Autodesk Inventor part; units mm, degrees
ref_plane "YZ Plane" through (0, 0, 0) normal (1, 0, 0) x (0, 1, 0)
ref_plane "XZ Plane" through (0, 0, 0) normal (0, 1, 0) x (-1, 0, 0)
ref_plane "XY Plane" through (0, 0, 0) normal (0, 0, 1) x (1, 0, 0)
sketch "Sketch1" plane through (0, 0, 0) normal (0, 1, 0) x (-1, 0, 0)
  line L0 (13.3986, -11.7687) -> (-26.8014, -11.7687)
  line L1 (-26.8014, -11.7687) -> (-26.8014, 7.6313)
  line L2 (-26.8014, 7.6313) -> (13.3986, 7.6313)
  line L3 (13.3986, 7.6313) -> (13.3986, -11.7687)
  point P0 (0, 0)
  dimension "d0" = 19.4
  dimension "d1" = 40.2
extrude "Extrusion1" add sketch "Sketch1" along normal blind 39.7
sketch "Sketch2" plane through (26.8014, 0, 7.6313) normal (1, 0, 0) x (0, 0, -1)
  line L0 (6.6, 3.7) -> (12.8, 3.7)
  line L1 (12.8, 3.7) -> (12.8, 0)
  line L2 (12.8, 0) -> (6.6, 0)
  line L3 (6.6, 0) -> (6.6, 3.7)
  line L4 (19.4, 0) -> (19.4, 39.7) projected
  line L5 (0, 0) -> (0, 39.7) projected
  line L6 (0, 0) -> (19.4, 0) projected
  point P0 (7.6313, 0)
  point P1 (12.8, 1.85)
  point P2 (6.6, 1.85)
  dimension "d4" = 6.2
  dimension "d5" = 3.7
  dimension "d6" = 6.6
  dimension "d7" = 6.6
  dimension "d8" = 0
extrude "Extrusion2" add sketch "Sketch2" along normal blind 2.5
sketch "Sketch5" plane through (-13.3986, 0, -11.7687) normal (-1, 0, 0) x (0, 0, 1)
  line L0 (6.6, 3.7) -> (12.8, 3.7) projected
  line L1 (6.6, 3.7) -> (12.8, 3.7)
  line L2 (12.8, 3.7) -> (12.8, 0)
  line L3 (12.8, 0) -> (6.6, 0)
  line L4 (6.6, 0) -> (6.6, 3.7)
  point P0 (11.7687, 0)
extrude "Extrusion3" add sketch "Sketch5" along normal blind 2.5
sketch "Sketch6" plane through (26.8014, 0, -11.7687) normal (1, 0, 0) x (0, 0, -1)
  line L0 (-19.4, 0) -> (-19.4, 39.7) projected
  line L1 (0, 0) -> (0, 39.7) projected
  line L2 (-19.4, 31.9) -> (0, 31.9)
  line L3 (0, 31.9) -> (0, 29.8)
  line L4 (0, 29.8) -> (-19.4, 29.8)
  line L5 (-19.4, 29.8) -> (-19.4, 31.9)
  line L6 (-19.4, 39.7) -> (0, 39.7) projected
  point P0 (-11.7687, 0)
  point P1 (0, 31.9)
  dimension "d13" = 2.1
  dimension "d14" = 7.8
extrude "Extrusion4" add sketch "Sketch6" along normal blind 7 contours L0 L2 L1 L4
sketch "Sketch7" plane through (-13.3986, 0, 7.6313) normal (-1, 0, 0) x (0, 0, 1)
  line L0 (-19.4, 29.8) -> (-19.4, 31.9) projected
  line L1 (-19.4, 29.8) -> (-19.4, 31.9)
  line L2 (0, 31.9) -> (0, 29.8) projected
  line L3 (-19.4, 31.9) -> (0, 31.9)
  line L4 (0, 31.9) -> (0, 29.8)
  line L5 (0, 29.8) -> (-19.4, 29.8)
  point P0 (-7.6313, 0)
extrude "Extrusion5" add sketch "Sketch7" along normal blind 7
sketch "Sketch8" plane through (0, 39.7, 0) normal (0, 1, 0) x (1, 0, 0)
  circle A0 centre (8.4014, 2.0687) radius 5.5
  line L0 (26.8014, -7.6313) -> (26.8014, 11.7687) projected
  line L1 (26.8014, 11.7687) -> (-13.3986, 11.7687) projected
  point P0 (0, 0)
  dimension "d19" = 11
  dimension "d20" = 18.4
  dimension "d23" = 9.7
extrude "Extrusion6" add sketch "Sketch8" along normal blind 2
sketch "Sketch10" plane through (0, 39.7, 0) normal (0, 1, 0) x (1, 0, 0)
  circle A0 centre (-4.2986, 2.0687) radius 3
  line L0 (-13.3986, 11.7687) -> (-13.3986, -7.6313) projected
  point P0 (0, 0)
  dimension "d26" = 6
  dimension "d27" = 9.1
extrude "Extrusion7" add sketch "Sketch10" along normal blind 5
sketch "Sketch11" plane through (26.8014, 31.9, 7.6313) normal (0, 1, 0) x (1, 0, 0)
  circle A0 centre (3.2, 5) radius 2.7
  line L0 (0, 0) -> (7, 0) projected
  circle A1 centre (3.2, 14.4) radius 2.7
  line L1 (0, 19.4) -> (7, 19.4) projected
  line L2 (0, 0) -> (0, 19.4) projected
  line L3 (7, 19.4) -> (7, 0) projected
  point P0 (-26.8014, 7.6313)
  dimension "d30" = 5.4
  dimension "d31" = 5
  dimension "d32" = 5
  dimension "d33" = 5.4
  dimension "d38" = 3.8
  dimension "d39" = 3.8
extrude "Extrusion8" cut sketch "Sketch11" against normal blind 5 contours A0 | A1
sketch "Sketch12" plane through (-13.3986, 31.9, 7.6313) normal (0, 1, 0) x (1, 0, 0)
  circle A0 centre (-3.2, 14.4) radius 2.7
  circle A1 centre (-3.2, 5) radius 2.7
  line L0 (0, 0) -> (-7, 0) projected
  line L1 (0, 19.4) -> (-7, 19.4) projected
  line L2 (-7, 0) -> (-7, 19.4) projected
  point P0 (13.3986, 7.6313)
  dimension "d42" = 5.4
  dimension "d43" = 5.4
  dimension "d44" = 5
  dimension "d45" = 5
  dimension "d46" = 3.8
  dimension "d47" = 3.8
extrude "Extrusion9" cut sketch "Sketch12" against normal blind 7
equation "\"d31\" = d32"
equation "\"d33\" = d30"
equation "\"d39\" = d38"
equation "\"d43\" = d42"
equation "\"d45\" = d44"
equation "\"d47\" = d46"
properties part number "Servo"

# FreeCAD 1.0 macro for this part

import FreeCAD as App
import Part
import Sketcher
from FreeCAD import Vector
Q = App.Units.Quantity

doc = App.newDocument("Part")
body = doc.addObject("PartDesign::Body", "Body")

# Sketch on XZ plane
sketch1 = doc.addObject("Sketcher::SketchObject", "Sketch")
body.addObject(sketch1)
sketch1.AttachmentSupport = (doc.XZ_Plane, [""])
sketch1.MapMode = "FlatFace"
sketch1.addGeometry([
    Part.LineSegment(Vector(26.8014, -11.7687, 0), Vector(-13.3986, -11.7687, 0)),
    Part.LineSegment(Vector(-13.3986, -11.7687, 0), Vector(-13.3986, 7.6313, 0)),
    Part.LineSegment(Vector(-13.3986, 7.6313, 0), Vector(26.8014, 7.6313, 0)),
    Part.LineSegment(Vector(26.8014, 7.6313, 0), Vector(26.8014, -11.7687, 0)),
], False)
sketch1.addConstraint([
    Sketcher.Constraint("Coincident", 0, 2, 1, 1),
    Sketcher.Constraint("Coincident", 1, 2, 2, 1),
    Sketcher.Constraint("Coincident", 2, 2, 3, 1),
    Sketcher.Constraint("Coincident", 3, 2, 0, 1),
    Sketcher.Constraint("Horizontal", 0),
    Sketcher.Constraint("Vertical", 1),
    Sketcher.Constraint("Horizontal", 2),
    Sketcher.Constraint("Vertical", 3),
    Sketcher.Constraint("DistanceX", 0, 2, 0, 1, Q("40.2 mm")),
    Sketcher.Constraint("DistanceY", 1, 1, 1, 2, Q("19.4 mm")),
    Sketcher.Constraint("DistanceX", 0, 2, -1, 1, Q("13.3986 mm")),
    Sketcher.Constraint("DistanceY", 0, 2, -1, 1, Q("11.7687 mm")),
])
pad1 = doc.addObject("PartDesign::Pad", "Pad")
body.addObject(pad1)
pad1.Profile = sketch1
pad1.Length = 39.7
pad1.Reversed = True

# Sketch on YZ plane
sketch2 = doc.addObject("Sketcher::SketchObject", "Sketch001")
body.addObject(sketch2)
sketch2.AttachmentSupport = (doc.YZ_Plane, [""])
sketch2.MapMode = "FlatFace"
sketch2.AttachmentOffset = App.Placement(Vector(0, 0, 26.8014), App.Rotation())
sketch2.addGeometry([
    Part.LineSegment(Vector(3.7, -5.1687, 0), Vector(3.7, 1.0313, 0)),
    Part.LineSegment(Vector(3.7, 1.0313, 0), Vector(0, 1.0313, 0)),
    Part.LineSegment(Vector(0, 1.0313, 0), Vector(0, -5.1687, 0)),
    Part.LineSegment(Vector(0, -5.1687, 0), Vector(3.7, -5.1687, 0)),
], False)
sketch2.addConstraint([
    Sketcher.Constraint("Coincident", 0, 2, 1, 1),
    Sketcher.Constraint("Coincident", 1, 2, 2, 1),
    Sketcher.Constraint("Coincident", 2, 2, 3, 1),
    Sketcher.Constraint("Coincident", 3, 2, 0, 1),
    Sketcher.Constraint("Vertical", 0),
    Sketcher.Constraint("Horizontal", 1),
    Sketcher.Constraint("Vertical", 2),
    Sketcher.Constraint("Horizontal", 3),
    Sketcher.Constraint("PointOnObject", 1, 2, -2),
    Sketcher.Constraint("DistanceX", 1, 2, 1, 1, Q("3.7 mm")),
    Sketcher.Constraint("DistanceY", 0, 1, 0, 2, Q("6.2 mm")),
    Sketcher.Constraint("DistanceY", -1, 1, 0, 2, Q("1.0313 mm")),
])
pad2 = doc.addObject("PartDesign::Pad", "Pad001")
body.addObject(pad2)
pad2.Profile = sketch2
pad2.Length = 2.5

# Sketch on YZ plane
sketch3 = doc.addObject("Sketcher::SketchObject", "Sketch002")
body.addObject(sketch3)
sketch3.AttachmentSupport = (doc.YZ_Plane, [""])
sketch3.MapMode = "FlatFace"
sketch3.AttachmentOffset = App.Placement(Vector(0, 0, -13.3986), App.Rotation())
sketch3.addGeometry([
    Part.LineSegment(Vector(3.7, 1.0313, 0), Vector(3.7, -5.1687, 0)),
    Part.LineSegment(Vector(3.7, -5.1687, 0), Vector(0, -5.1687, 0)),
    Part.LineSegment(Vector(0, -5.1687, 0), Vector(0, 1.0313, 0)),
    Part.LineSegment(Vector(0, 1.0313, 0), Vector(3.7, 1.0313, 0)),
], False)
sketch3.addConstraint([
    Sketcher.Constraint("Coincident", 0, 2, 1, 1),
    Sketcher.Constraint("Coincident", 1, 2, 2, 1),
    Sketcher.Constraint("Coincident", 2, 2, 3, 1),
    Sketcher.Constraint("Coincident", 3, 2, 0, 1),
    Sketcher.Constraint("Vertical", 0),
    Sketcher.Constraint("Horizontal", 1),
    Sketcher.Constraint("Vertical", 2),
    Sketcher.Constraint("Horizontal", 3),
    Sketcher.Constraint("PointOnObject", 1, 2, -2),
    Sketcher.Constraint("DistanceX", 1, 2, 1, 1, Q("3.7 mm")),
    Sketcher.Constraint("DistanceY", 0, 2, 0, 1, Q("6.2 mm")),
    Sketcher.Constraint("DistanceY", 0, 2, -1, 1, Q("5.1687 mm")),
])
pad3 = doc.addObject("PartDesign::Pad", "Pad002")
body.addObject(pad3)
pad3.Profile = sketch3
pad3.Length = 2.5
pad3.Reversed = True

# Sketch on YZ plane
sketch4 = doc.addObject("Sketcher::SketchObject", "Sketch003")
body.addObject(sketch4)
sketch4.AttachmentSupport = (doc.YZ_Plane, [""])
sketch4.MapMode = "FlatFace"
sketch4.AttachmentOffset = App.Placement(Vector(0, 0, 26.8014), App.Rotation())
sketch4.addGeometry([
    Part.LineSegment(Vector(31.9, 7.6313, 0), Vector(29.8, 7.6313, 0)),
    Part.LineSegment(Vector(29.8, 7.6313, 0), Vector(29.8, -11.7687, 0)),
    Part.LineSegment(Vector(29.8, -11.7687, 0), Vector(31.9, -11.7687, 0)),
    Part.LineSegment(Vector(31.9, -11.7687, 0), Vector(31.9, 7.6313, 0)),
], False)
sketch4.addConstraint([
    Sketcher.Constraint("Coincident", 0, 2, 1, 1),
    Sketcher.Constraint("Coincident", 1, 2, 2, 1),
    Sketcher.Constraint("Coincident", 2, 2, 3, 1),
    Sketcher.Constraint("Coincident", 3, 2, 0, 1),
    Sketcher.Constraint("Horizontal", 0),
    Sketcher.Constraint("Vertical", 1),
    Sketcher.Constraint("Horizontal", 2),
    Sketcher.Constraint("Vertical", 3),
    Sketcher.Constraint("DistanceX", 0, 2, 0, 1, Q("2.1 mm")),
    Sketcher.Constraint("DistanceY", 1, 2, 1, 1, Q("19.4 mm")),
    Sketcher.Constraint("DistanceX", -1, 1, 0, 2, Q("29.8 mm")),
    Sketcher.Constraint("DistanceY", -1, 1, 0, 2, Q("7.6313 mm")),
])
pad4 = doc.addObject("PartDesign::Pad", "Pad003")
body.addObject(pad4)
pad4.Profile = sketch4
pad4.Length = 7

# Sketch on YZ plane
sketch5 = doc.addObject("Sketcher::SketchObject", "Sketch004")
body.addObject(sketch5)
sketch5.AttachmentSupport = (doc.YZ_Plane, [""])
sketch5.MapMode = "FlatFace"
sketch5.AttachmentOffset = App.Placement(Vector(0, 0, -13.3986), App.Rotation())
sketch5.addGeometry([
    Part.LineSegment(Vector(31.9, -11.7687, 0), Vector(29.8, -11.7687, 0)),
    Part.LineSegment(Vector(29.8, -11.7687, 0), Vector(29.8, 7.6313, 0)),
    Part.LineSegment(Vector(29.8, 7.6313, 0), Vector(31.9, 7.6313, 0)),
    Part.LineSegment(Vector(31.9, 7.6313, 0), Vector(31.9, -11.7687, 0)),
], False)
sketch5.addConstraint([
    Sketcher.Constraint("Coincident", 0, 2, 1, 1),
    Sketcher.Constraint("Coincident", 1, 2, 2, 1),
    Sketcher.Constraint("Coincident", 2, 2, 3, 1),
    Sketcher.Constraint("Coincident", 3, 2, 0, 1),
    Sketcher.Constraint("Horizontal", 0),
    Sketcher.Constraint("Vertical", 1),
    Sketcher.Constraint("Horizontal", 2),
    Sketcher.Constraint("Vertical", 3),
    Sketcher.Constraint("DistanceX", 0, 2, 0, 1, Q("2.1 mm")),
    Sketcher.Constraint("DistanceY", 1, 1, 1, 2, Q("19.4 mm")),
    Sketcher.Constraint("DistanceX", -1, 1, 0, 2, Q("29.8 mm")),
    Sketcher.Constraint("DistanceY", 0, 2, -1, 1, Q("11.7687 mm")),
])
pad5 = doc.addObject("PartDesign::Pad", "Pad004")
body.addObject(pad5)
pad5.Profile = sketch5
pad5.Length = 7
pad5.Reversed = True

# Sketch on XZ plane
sketch6 = doc.addObject("Sketcher::SketchObject", "Sketch005")
body.addObject(sketch6)
sketch6.AttachmentSupport = (doc.XZ_Plane, [""])
sketch6.MapMode = "FlatFace"
sketch6.AttachmentOffset = App.Placement(Vector(0, 0, -39.7), App.Rotation())
sketch6.addGeometry(Part.Circle(Vector(8.4014, -2.0687, 0), Vector(0, 0, 1), 5.5), False)
sketch6.addConstraint([
    Sketcher.Constraint("Diameter", 0, Q("11 mm")),
    Sketcher.Constraint("DistanceX", -1, 1, 0, 3, Q("8.4014 mm")),
    Sketcher.Constraint("DistanceY", 0, 3, -1, 1, Q("2.0687 mm")),
])
pad6 = doc.addObject("PartDesign::Pad", "Pad005")
body.addObject(pad6)
pad6.Profile = sketch6
pad6.Length = 2
pad6.Reversed = True

# Sketch on XZ plane
sketch7 = doc.addObject("Sketcher::SketchObject", "Sketch006")
body.addObject(sketch7)
sketch7.AttachmentSupport = (doc.XZ_Plane, [""])
sketch7.MapMode = "FlatFace"
sketch7.AttachmentOffset = App.Placement(Vector(0, 0, -39.7), App.Rotation())
sketch7.addGeometry(Part.Circle(Vector(-4.2986, -2.0687, 0), Vector(0, 0, 1), 3), False)
sketch7.addConstraint([
    Sketcher.Constraint("Diameter", 0, Q("6 mm")),
    Sketcher.Constraint("DistanceX", 0, 3, -1, 1, Q("4.2986 mm")),
    Sketcher.Constraint("DistanceY", 0, 3, -1, 1, Q("2.0687 mm")),
])
pad7 = doc.addObject("PartDesign::Pad", "Pad006")
body.addObject(pad7)
pad7.Profile = sketch7
pad7.Length = 5
pad7.Reversed = True

# Sketch on XZ plane
sketch8 = doc.addObject("Sketcher::SketchObject", "Sketch007")
body.addObject(sketch8)
sketch8.AttachmentSupport = (doc.XZ_Plane, [""])
sketch8.MapMode = "FlatFace"
sketch8.AttachmentOffset = App.Placement(Vector(0, 0, -31.9), App.Rotation())
sketch8.addGeometry([
    Part.Circle(Vector(30.0014, 2.6313, 0), Vector(0, 0, 1), 2.7),
    Part.Circle(Vector(30.0014, -6.7687, 0), Vector(0, 0, 1), 2.7),
], False)
sketch8.addConstraint([
    Sketcher.Constraint("Equal", 0, 1),
    Sketcher.Constraint("Vertical", 0, 3, 1, 3),
    Sketcher.Constraint("Diameter", 0, Q("5.4 mm")),
    Sketcher.Constraint("DistanceY", 1, 3, 0, 3, Q("9.4 mm")),
    Sketcher.Constraint("DistanceX", -1, 1, 0, 3, Q("30.0014 mm")),
    Sketcher.Constraint("DistanceY", -1, 1, 0, 3, Q("2.6313 mm")),
])
pocket1 = doc.addObject("PartDesign::Pocket", "Pocket")
body.addObject(pocket1)
pocket1.Profile = sketch8
pocket1.Length = 5
pocket1.Reversed = True

# Sketch on XZ plane
sketch9 = doc.addObject("Sketcher::SketchObject", "Sketch008")
body.addObject(sketch9)
sketch9.AttachmentSupport = (doc.XZ_Plane, [""])
sketch9.MapMode = "FlatFace"
sketch9.AttachmentOffset = App.Placement(Vector(0, 0, -31.9), App.Rotation())
sketch9.addGeometry([
    Part.Circle(Vector(-16.5986, -6.7687, 0), Vector(0, 0, 1), 2.7),
    Part.Circle(Vector(-16.5986, 2.6313, 0), Vector(0, 0, 1), 2.7),
], False)
sketch9.addConstraint([
    Sketcher.Constraint("Equal", 0, 1),
    Sketcher.Constraint("Vertical", 0, 3, 1, 3),
    Sketcher.Constraint("Diameter", 0, Q("5.4 mm")),
    Sketcher.Constraint("DistanceY", 0, 3, 1, 3, Q("9.4 mm")),
    Sketcher.Constraint("DistanceX", 0, 3, -1, 1, Q("16.5986 mm")),
    Sketcher.Constraint("DistanceY", 0, 3, -1, 1, Q("6.7687 mm")),
])
pocket2 = doc.addObject("PartDesign::Pocket", "Pocket001")
body.addObject(pocket2)
pocket2.Profile = sketch9
pocket2.Length = 7
pocket2.Reversed = True

doc.recompute()
